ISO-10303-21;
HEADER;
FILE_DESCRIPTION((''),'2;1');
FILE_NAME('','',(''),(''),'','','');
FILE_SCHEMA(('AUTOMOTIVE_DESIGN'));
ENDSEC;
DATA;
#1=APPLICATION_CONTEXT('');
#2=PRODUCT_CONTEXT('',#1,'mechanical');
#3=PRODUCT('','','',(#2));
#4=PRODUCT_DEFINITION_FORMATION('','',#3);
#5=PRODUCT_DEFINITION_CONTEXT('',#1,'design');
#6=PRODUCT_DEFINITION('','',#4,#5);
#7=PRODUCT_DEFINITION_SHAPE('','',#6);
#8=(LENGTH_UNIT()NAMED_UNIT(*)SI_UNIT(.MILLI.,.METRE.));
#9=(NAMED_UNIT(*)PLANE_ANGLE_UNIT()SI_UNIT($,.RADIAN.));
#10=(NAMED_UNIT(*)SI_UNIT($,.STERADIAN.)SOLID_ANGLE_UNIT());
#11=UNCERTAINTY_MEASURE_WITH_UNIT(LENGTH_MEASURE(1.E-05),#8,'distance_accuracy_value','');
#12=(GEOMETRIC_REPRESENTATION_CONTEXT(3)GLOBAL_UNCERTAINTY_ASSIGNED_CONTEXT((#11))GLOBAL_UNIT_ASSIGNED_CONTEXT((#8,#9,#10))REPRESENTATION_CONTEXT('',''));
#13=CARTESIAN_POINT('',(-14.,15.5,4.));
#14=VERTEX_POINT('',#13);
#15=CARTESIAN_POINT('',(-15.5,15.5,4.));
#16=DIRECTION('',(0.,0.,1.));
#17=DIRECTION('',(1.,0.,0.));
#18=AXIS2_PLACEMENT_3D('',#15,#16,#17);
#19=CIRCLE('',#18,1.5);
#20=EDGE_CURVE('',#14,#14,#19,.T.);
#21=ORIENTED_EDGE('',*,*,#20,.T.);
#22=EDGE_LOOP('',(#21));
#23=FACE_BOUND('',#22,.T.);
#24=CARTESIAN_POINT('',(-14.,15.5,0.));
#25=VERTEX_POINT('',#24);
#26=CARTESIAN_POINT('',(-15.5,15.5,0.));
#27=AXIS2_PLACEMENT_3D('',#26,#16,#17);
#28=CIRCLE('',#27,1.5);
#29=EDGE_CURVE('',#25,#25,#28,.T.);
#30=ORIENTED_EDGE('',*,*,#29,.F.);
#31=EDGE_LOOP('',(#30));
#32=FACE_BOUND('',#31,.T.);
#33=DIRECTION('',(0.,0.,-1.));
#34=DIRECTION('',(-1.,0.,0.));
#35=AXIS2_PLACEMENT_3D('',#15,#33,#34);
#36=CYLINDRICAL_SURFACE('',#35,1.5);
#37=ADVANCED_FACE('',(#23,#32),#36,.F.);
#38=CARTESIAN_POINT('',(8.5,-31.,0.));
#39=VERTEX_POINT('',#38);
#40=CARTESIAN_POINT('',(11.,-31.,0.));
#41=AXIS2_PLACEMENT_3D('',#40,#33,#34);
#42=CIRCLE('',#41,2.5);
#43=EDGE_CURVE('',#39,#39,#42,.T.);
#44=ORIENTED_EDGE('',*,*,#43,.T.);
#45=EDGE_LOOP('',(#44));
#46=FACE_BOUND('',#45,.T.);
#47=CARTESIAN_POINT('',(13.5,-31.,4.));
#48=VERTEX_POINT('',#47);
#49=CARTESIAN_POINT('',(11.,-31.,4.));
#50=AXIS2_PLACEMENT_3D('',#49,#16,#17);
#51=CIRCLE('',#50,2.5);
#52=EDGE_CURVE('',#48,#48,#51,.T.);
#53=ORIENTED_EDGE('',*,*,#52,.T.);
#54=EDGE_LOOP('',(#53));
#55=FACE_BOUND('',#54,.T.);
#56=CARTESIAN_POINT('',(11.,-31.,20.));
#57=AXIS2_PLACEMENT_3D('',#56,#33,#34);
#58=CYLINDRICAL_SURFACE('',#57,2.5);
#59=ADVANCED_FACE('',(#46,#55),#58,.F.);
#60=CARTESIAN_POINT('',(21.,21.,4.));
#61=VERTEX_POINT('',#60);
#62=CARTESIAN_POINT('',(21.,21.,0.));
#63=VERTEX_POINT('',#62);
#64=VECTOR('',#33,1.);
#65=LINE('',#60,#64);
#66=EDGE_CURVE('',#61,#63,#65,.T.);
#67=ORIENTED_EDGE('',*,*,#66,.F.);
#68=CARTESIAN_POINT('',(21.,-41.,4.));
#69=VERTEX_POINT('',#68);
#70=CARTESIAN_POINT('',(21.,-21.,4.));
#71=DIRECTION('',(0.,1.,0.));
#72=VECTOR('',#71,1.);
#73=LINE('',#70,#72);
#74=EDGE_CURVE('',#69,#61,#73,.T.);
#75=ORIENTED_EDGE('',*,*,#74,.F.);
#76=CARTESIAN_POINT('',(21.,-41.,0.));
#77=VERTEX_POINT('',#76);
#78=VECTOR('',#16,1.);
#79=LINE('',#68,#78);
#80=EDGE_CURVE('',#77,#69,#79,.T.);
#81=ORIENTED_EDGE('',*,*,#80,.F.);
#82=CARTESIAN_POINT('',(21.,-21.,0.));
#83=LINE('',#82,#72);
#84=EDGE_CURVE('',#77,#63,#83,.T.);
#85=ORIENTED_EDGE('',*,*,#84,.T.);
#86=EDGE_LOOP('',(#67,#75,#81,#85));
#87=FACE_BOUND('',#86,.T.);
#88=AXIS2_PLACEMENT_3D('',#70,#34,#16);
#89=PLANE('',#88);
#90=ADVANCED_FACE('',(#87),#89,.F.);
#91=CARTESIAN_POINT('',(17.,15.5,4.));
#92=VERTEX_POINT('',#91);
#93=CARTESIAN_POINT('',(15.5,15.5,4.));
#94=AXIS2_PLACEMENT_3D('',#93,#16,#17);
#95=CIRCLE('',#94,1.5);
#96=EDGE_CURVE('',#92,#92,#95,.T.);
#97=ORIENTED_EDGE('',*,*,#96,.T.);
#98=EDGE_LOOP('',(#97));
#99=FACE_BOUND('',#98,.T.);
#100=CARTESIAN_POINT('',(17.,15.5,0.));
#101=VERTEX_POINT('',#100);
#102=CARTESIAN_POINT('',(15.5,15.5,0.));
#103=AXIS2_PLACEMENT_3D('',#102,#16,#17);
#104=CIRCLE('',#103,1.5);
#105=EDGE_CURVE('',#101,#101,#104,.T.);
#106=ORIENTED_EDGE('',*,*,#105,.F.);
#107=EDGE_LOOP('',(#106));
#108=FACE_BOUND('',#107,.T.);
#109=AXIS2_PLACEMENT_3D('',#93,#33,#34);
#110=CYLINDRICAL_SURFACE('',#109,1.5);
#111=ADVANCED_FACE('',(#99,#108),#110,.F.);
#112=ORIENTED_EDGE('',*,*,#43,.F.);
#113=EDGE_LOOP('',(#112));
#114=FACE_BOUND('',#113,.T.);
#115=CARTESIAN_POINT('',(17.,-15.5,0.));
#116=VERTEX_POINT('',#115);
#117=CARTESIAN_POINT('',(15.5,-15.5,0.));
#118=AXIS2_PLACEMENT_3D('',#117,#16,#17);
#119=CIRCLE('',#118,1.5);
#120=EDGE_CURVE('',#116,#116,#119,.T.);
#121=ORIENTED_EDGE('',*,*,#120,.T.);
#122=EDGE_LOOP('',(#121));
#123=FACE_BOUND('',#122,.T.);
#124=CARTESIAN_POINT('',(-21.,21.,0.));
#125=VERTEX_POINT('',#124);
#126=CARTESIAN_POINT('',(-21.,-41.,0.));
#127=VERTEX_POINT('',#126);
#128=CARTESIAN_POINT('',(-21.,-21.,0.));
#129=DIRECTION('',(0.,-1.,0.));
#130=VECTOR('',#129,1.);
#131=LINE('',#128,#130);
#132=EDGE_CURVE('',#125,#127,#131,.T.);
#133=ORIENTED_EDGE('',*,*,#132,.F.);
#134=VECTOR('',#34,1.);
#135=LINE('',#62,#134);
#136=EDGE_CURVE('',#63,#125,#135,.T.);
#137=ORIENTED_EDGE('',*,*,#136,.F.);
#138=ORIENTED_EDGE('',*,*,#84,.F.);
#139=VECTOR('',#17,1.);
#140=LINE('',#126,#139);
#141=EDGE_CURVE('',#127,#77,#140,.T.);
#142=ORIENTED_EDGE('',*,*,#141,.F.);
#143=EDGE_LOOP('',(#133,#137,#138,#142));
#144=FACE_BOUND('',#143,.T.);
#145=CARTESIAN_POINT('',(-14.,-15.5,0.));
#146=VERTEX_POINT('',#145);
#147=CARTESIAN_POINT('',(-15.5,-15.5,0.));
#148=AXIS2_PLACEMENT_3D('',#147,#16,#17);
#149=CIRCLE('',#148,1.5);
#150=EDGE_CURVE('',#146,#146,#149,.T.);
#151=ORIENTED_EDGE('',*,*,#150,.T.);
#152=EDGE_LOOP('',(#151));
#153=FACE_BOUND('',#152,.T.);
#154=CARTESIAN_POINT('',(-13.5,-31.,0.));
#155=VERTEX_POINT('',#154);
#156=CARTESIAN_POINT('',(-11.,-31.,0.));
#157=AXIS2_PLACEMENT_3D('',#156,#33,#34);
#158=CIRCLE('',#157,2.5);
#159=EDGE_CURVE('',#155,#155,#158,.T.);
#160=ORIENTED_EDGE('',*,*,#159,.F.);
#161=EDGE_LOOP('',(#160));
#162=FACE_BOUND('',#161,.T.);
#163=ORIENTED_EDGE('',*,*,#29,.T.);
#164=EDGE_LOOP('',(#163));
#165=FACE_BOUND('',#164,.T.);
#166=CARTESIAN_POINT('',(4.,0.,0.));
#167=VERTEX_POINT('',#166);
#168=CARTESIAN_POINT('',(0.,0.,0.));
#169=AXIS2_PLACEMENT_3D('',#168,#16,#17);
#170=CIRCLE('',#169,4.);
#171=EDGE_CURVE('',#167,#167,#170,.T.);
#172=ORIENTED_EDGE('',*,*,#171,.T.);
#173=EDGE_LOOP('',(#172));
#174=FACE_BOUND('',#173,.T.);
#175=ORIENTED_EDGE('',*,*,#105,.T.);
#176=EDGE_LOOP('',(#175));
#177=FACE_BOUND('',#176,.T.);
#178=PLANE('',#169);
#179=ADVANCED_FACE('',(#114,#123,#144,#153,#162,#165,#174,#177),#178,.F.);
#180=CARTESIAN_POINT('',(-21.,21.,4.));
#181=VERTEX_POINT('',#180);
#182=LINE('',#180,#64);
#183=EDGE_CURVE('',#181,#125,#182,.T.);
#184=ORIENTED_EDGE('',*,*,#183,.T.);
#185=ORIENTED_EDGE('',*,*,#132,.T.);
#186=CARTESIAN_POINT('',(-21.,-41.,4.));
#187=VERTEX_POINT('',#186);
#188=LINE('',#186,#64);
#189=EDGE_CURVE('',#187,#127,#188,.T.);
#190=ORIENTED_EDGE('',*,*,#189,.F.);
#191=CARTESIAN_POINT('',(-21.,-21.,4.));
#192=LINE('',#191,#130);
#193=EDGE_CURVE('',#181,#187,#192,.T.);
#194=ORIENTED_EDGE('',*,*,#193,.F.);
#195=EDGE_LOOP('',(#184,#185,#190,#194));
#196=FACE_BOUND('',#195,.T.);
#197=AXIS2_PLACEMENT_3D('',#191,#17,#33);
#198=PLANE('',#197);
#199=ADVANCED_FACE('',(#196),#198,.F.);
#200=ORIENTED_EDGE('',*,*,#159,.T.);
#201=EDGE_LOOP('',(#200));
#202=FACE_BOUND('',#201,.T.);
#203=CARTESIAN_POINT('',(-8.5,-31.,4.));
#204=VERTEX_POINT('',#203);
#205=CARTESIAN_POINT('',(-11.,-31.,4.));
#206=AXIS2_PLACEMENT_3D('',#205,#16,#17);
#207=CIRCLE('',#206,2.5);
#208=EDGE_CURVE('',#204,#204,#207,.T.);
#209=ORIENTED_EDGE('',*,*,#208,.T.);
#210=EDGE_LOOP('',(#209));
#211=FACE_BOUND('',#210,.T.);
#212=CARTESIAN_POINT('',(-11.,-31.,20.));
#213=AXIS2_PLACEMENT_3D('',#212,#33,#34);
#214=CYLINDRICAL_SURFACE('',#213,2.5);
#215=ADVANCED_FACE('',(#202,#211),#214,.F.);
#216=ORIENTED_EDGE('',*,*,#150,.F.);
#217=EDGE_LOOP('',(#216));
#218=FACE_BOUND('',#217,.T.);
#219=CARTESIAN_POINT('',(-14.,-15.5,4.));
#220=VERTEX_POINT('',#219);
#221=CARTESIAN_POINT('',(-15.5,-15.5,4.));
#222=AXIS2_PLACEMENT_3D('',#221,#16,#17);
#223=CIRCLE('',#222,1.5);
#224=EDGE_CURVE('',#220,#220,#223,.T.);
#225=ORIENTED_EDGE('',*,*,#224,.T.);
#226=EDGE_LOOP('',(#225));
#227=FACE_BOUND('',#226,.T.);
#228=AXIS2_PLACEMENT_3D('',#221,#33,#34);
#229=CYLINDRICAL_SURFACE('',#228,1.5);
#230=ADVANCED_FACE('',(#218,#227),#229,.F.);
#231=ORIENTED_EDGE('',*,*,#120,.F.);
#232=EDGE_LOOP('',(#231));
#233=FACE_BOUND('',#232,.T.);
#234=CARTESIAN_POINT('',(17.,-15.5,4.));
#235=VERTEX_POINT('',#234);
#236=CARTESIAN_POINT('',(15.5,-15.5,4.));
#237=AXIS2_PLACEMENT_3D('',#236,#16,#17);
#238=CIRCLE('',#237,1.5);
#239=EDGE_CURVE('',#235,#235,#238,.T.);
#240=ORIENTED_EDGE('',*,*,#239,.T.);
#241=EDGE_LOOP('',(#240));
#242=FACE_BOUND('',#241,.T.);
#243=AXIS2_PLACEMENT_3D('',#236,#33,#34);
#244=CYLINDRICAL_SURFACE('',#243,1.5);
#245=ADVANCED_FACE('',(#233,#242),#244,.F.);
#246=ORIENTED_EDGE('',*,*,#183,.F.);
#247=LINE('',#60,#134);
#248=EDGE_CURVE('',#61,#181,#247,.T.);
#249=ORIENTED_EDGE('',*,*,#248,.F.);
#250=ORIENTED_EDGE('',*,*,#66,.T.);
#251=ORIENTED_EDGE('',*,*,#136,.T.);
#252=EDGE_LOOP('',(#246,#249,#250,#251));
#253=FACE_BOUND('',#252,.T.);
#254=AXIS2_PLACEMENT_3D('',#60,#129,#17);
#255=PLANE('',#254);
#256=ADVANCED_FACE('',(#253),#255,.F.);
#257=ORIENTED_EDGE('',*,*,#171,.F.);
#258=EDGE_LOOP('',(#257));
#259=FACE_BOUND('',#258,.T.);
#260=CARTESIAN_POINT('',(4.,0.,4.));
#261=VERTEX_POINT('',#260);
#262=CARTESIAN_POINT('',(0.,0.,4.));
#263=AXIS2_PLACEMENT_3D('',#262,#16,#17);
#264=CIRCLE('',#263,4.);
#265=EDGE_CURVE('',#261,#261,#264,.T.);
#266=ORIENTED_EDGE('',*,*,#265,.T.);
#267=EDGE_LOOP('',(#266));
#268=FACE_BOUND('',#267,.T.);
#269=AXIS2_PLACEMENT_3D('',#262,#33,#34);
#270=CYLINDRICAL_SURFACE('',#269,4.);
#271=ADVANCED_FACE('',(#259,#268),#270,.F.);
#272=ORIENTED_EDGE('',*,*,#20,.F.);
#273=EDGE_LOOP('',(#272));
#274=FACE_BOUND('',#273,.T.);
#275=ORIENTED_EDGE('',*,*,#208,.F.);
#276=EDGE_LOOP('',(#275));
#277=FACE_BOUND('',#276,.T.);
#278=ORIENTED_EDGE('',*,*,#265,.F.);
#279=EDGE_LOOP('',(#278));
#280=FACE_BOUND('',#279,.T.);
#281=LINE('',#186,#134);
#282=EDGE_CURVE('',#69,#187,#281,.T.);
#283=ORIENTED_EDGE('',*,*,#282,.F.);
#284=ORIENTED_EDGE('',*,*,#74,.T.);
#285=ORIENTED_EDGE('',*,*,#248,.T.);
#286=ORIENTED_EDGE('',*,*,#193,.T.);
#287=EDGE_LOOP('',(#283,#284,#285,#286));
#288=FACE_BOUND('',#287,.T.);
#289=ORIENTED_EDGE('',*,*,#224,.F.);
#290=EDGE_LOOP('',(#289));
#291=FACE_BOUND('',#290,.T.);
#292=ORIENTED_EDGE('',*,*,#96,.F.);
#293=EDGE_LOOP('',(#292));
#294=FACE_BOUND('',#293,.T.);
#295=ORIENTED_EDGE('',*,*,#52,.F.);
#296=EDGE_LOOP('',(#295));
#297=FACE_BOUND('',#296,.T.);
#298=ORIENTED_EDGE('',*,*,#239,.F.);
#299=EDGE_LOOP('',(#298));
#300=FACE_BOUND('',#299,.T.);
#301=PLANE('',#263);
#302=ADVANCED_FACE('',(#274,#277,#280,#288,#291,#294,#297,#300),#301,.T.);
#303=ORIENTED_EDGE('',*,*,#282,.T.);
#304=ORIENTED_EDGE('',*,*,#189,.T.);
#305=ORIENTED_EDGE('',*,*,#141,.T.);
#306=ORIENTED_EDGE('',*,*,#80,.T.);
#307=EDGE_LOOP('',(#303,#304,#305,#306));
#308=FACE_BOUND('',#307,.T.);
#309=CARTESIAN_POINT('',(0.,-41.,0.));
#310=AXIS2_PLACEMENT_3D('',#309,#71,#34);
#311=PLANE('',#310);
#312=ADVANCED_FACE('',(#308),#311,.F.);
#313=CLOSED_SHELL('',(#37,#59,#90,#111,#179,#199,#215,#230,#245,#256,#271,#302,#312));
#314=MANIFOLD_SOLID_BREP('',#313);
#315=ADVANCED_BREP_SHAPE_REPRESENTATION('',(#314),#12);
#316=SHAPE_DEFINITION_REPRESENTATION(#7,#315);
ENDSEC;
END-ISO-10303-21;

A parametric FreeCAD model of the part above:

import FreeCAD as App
import Part
import Sketcher

V = App.Vector
Q = App.Units.Quantity


def add_polygon(sketch, points):
    """Adds a closed chain of lines whose ends are joined by coincident constraints."""
    first, n = sketch.GeometryCount, len(points)
    for a, b in zip(points, points[1:] + points[:1]):
        sketch.addGeometry(Part.LineSegment(App.Vector(*a, 0), App.Vector(*b, 0)), False)
    for i in range(n):
        sketch.addConstraint(Sketcher.Constraint("Coincident", first + i, 2, first + (i + 1) % n, 1))

doc = App.newDocument("Part")
params = doc.addObject("Spreadsheet::Sheet", "Params")
for row, (alias, value) in enumerate([
    ("sketch1_diameter", "3 mm"),
    ("sketch1_diameter2", "8 mm"),
    ("sketch1_width", "42 mm"),
    ("pad1_length", "4 mm"),
    ("sketch2_width", "42 mm"),
    ("sketch2_height", "4 mm"),
    ("pad2_length", "20 mm"),
    ("sketch3_diameter", "5 mm"),
    ("pocket1_length", "20 mm"),
], start=1):
    params.set(f"A{row}", alias)
    params.set(f"B{row}", "=" + value)
    params.setAlias(f"B{row}", alias)

body = doc.addObject("PartDesign::Body", "Body")

# Sketch on XY plane
sketch1 = body.newObject("Sketcher::SketchObject", "Sketch")
sketch1.AttachmentSupport = (doc.getObject("XY_Plane"), [""])
sketch1.MapMode = "FlatFace"
add_polygon(sketch1, [(-21, 21), (-21, -21), (21, -21), (21, 21)])  # lines 0-3
sketch1.addGeometry(Part.Circle(V(-15.5, -15.5, 0), V(0, 0, 1), 1.5), False)  # 4
sketch1.addGeometry(Part.Circle(V(15.5, -15.5, 0), V(0, 0, 1), 1.5), False)  # 5
sketch1.addGeometry(Part.Circle(V(-15.5, 15.5, 0), V(0, 0, 1), 1.5), False)  # 6
sketch1.addGeometry(Part.Circle(V(0, 0, 0), V(0, 0, 1), 4), False)  # 7
sketch1.addGeometry(Part.Circle(V(15.5, 15.5, 0), V(0, 0, 1), 1.5), False)  # 8
sketch1.addConstraint([
    Sketcher.Constraint("Vertical", 0),
    Sketcher.Constraint("Horizontal", 1),
    Sketcher.Constraint("Vertical", 2),
    Sketcher.Constraint("Horizontal", 3),
    Sketcher.Constraint("Coincident", 7, 3, -1, 1),
    Sketcher.Constraint("Equal", 4, 5),
    Sketcher.Constraint("Equal", 5, 6),
    Sketcher.Constraint("Equal", 6, 8),
    Sketcher.Constraint("Symmetric", 5, 3, 6, 3, -1, 1),
    Sketcher.Constraint("Symmetric", 4, 3, 8, 3, -1, 1),
    Sketcher.Constraint("Symmetric", 0, 2, 2, 2, -1, 1),
    Sketcher.Constraint("Symmetric", 4, 3, 5, 3, -2),
    Sketcher.Constraint("Equal", 3, 0),
    Sketcher.Constraint("Diameter", 4, Q("3 mm")),
    Sketcher.Constraint("Diameter", 7, Q("8 mm")),
    Sketcher.Constraint("DistanceX", 1, 1, 1, 2, Q("42 mm")),
    Sketcher.Constraint("DistanceX", 4, 3, 5, 3, Q("31 mm")),
    Sketcher.Constraint("DistanceY", 4, 3, 6, 3, Q("31 mm")),
])
sketch1.setExpression("Constraints[17]", "Params.sketch1_diameter")
sketch1.setExpression("Constraints[18]", "Params.sketch1_diameter2")
sketch1.setExpression("Constraints[19]", "Params.sketch1_width")
pad1 = body.newObject("PartDesign::Pad", "Pad")
pad1.Profile = sketch1
pad1.setExpression("Length", "Params.pad1_length")

# Sketch on XZ plane
sketch2 = body.newObject("Sketcher::SketchObject", "Sketch001")
sketch2.AttachmentSupport = (doc.getObject("XZ_Plane"), [""])
sketch2.MapMode = "FlatFace"
sketch2.AttachmentOffset = App.Placement(V(0, 0, 21), App.Rotation())
add_polygon(sketch2, [(-21, 4), (-21, 0), (21, 0), (21, 4)])  # lines 0-3
sketch2.addConstraint([
    Sketcher.Constraint("Vertical", 0),
    Sketcher.Constraint("Horizontal", 1),
    Sketcher.Constraint("Vertical", 2),
    Sketcher.Constraint("Horizontal", 3),
    Sketcher.Constraint("Symmetric", 0, 2, 1, 2, -1, 1),
    Sketcher.Constraint("DistanceX", 1, 1, 1, 2, Q("42 mm")),
    Sketcher.Constraint("DistanceY", 0, 2, 0, 1, Q("4 mm")),
])
sketch2.setExpression("Constraints[9]", "Params.sketch2_width")
sketch2.setExpression("Constraints[10]", "Params.sketch2_height")
pad2 = body.newObject("PartDesign::Pad", "Pad001")
pad2.Profile = sketch2
pad2.setExpression("Length", "Params.pad2_length")

# Sketch on XY plane
sketch3 = body.newObject("Sketcher::SketchObject", "Sketch002")
sketch3.AttachmentSupport = (doc.getObject("XY_Plane"), [""])
sketch3.MapMode = "FlatFace"
sketch3.addGeometry([
    Part.Circle(V(11, -31, 0), V(0, 0, 1), 2.5),
    Part.Circle(V(-11, -31, 0), V(0, 0, 1), 2.5),
], False)
sketch3.addConstraint([
    Sketcher.Constraint("Equal", 0, 1),
    Sketcher.Constraint("Symmetric", 0, 3, 1, 3, -2),
    Sketcher.Constraint("Diameter", 0, Q("5 mm")),
    Sketcher.Constraint("DistanceX", -1, 1, 0, 3, Q("11 mm")),
    Sketcher.Constraint("DistanceY", 0, 3, -1, 1, Q("31 mm")),
])
sketch3.setExpression("Constraints[2]", "Params.sketch3_diameter")
pocket1 = body.newObject("PartDesign::Pocket", "Pocket")
pocket1.Profile = sketch3
pocket1.setExpression("Length", "Params.pocket1_length")
pocket1.Reversed = True

doc.recompute()
